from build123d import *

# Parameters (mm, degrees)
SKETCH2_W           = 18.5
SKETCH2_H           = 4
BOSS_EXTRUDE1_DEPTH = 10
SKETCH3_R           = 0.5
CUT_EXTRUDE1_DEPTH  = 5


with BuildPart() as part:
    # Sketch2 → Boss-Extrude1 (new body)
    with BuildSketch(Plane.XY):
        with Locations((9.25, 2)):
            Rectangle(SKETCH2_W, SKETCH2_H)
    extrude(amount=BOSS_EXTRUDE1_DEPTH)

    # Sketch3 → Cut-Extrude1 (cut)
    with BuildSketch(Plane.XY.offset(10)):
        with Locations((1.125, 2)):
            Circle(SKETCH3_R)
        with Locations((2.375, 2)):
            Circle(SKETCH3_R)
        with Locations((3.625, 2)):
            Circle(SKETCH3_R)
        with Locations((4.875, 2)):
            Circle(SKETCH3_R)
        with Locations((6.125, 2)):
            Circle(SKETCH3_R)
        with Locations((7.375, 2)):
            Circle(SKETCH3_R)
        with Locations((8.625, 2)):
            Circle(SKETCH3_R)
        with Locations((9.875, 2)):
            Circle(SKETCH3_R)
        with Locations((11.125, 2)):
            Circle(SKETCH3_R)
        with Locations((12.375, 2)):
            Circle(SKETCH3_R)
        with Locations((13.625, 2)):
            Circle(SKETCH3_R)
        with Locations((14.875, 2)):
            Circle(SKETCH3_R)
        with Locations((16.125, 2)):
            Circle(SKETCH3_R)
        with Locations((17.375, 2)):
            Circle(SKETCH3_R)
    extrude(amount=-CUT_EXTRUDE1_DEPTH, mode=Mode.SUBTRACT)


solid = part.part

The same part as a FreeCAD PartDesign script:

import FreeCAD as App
import Part
import Sketcher

V = App.Vector
Q = App.Units.Quantity

doc = App.newDocument("Part")
body = doc.addObject("PartDesign::Body", "Body")

sketch1 = body.newObject("Sketcher::SketchObject", "Sketch")
sketch1.AttachmentSupport = (doc.getObject("XY_Plane"), [""])
sketch1.MapMode = "FlatFace"
sketch1.addGeometry(Part.LineSegment(V(0, 4, 0), V(0, 0, 0)), False)
sketch1.addGeometry(Part.LineSegment(V(0, 0, 0), V(18.5, 0, 0)), False)
sketch1.addGeometry(Part.LineSegment(V(18.5, 0, 0), V(18.5, 4, 0)), False)
sketch1.addGeometry(Part.LineSegment(V(18.5, 4, 0), V(0, 4, 0)), False)
sketch1.addConstraint(Sketcher.Constraint("Coincident", 0, 2, 1, 1))
sketch1.addConstraint(Sketcher.Constraint("Coincident", 1, 2, 2, 1))
sketch1.addConstraint(Sketcher.Constraint("Coincident", 2, 2, 3, 1))
sketch1.addConstraint(Sketcher.Constraint("Coincident", 3, 2, 0, 1))
sketch1.addConstraint(Sketcher.Constraint("Vertical", 0))
sketch1.addConstraint(Sketcher.Constraint("Horizontal", 1))
sketch1.addConstraint(Sketcher.Constraint("Vertical", 2))
sketch1.addConstraint(Sketcher.Constraint("Horizontal", 3))
sketch1.addConstraint(Sketcher.Constraint("Coincident", 0, 2, -1, 1))
sketch1.addConstraint(Sketcher.Constraint("DistanceY", 0, 2, 0, 1, Q("4 mm")))
sketch1.addConstraint(Sketcher.Constraint("DistanceX", 1, 1, 1, 2, Q("18.5 mm")))
pad1 = body.newObject("PartDesign::Pad", "Pad")
pad1.Profile = sketch1
pad1.Length = 10

sketch2 = body.newObject("Sketcher::SketchObject", "Sketch001")
sketch2.AttachmentSupport = (doc.getObject("XY_Plane"), [""])
sketch2.MapMode = "FlatFace"
sketch2.AttachmentOffset = App.Placement(V(0, 0, 10), App.Rotation())
sketch2.addGeometry(Part.Circle(V(1.1, 2, 0), V(0, 0, 1), 0.5), False)
sketch2.addGeometry(Part.Circle(V(2.4, 2, 0), V(0, 0, 1), 0.5), False)
sketch2.addGeometry(Part.Circle(V(3.6, 2, 0), V(0, 0, 1), 0.5), False)
sketch2.addGeometry(Part.Circle(V(4.9, 2, 0), V(0, 0, 1), 0.5), False)
sketch2.addGeometry(Part.Circle(V(6.1, 2, 0), V(0, 0, 1), 0.5), False)
sketch2.addGeometry(Part.Circle(V(7.4, 2, 0), V(0, 0, 1), 0.5), False)
sketch2.addGeometry(Part.Circle(V(8.6, 2, 0), V(0, 0, 1), 0.5), False)
sketch2.addGeometry(Part.Circle(V(9.9, 2, 0), V(0, 0, 1), 0.5), False)
sketch2.addGeometry(Part.Circle(V(11.1, 2, 0), V(0, 0, 1), 0.5), False)
sketch2.addGeometry(Part.Circle(V(12.4, 2, 0), V(0, 0, 1), 0.5), False)
sketch2.addGeometry(Part.Circle(V(13.6, 2, 0), V(0, 0, 1), 0.5), False)
sketch2.addGeometry(Part.Circle(V(14.9, 2, 0), V(0, 0, 1), 0.5), False)
sketch2.addGeometry(Part.Circle(V(16.1, 2, 0), V(0, 0, 1), 0.5), False)
sketch2.addGeometry(Part.Circle(V(17.4, 2, 0), V(0, 0, 1), 0.5), False)
sketch2.addConstraint(Sketcher.Constraint("Equal", 0, 1))
sketch2.addConstraint(Sketcher.Constraint("Equal", 1, 2))
sketch2.addConstraint(Sketcher.Constraint("Equal", 2, 3))
sketch2.addConstraint(Sketcher.Constraint("Equal", 3, 4))
sketch2.addConstraint(Sketcher.Constraint("Equal", 4, 5))
sketch2.addConstraint(Sketcher.Constraint("Equal", 5, 6))
sketch2.addConstraint(Sketcher.Constraint("Equal", 6, 7))
sketch2.addConstraint(Sketcher.Constraint("Equal", 7, 8))
sketch2.addConstraint(Sketcher.Constraint("Equal", 8, 9))
sketch2.addConstraint(Sketcher.Constraint("Equal", 9, 10))
sketch2.addConstraint(Sketcher.Constraint("Equal", 10, 11))
sketch2.addConstraint(Sketcher.Constraint("Equal", 11, 12))
sketch2.addConstraint(Sketcher.Constraint("Equal", 12, 13))
sketch2.addConstraint(Sketcher.Constraint("Horizontal", 0, 3, 1, 3))
sketch2.addConstraint(Sketcher.Constraint("Horizontal", 1, 3, 2, 3))
sketch2.addConstraint(Sketcher.Constraint("Horizontal", 2, 3, 3, 3))
sketch2.addConstraint(Sketcher.Constraint("Horizontal", 3, 3, 4, 3))
sketch2.addConstraint(Sketcher.Constraint("Horizontal", 4, 3, 5, 3))
sketch2.addConstraint(Sketcher.Constraint("Horizontal", 5, 3, 6, 3))
sketch2.addConstraint(Sketcher.Constraint("Horizontal", 6, 3, 7, 3))
sketch2.addConstraint(Sketcher.Constraint("Horizontal", 7, 3, 8, 3))
sketch2.addConstraint(Sketcher.Constraint("Horizontal", 8, 3, 9, 3))
sketch2.addConstraint(Sketcher.Constraint("Horizontal", 9, 3, 10, 3))
sketch2.addConstraint(Sketcher.Constraint("Horizontal", 10, 3, 11, 3))
sketch2.addConstraint(Sketcher.Constraint("Horizontal", 11, 3, 12, 3))
sketch2.addConstraint(Sketcher.Constraint("Horizontal", 12, 3, 13, 3))
sketch2.addConstraint(Sketcher.Constraint("Diameter", 0, Q("1 mm")))
sketch2.addConstraint(Sketcher.Constraint("DistanceY", -1, 1, 0, 3, Q("2 mm")))
sketch2.addConstraint(Sketcher.Constraint("DistanceX", 0, 3, 4, 3, Q("5 mm")))
sketch2.addConstraint(Sketcher.Constraint("DistanceX", 1, 3, 5, 3, Q("5 mm")))
sketch2.addConstraint(Sketcher.Constraint("DistanceX", 2, 3, 6, 3, Q("5 mm")))
sketch2.addConstraint(Sketcher.Constraint("DistanceX", 3, 3, 7, 3, Q("5 mm")))
sketch2.addConstraint(Sketcher.Constraint("DistanceX", 4, 3, 8, 3, Q("5 mm")))
sketch2.addConstraint(Sketcher.Constraint("DistanceX", 5, 3, 9, 3, Q("5 mm")))
sketch2.addConstraint(Sketcher.Constraint("DistanceX", 6, 3, 10, 3, Q("5 mm")))
sketch2.addConstraint(Sketcher.Constraint("DistanceX", 7, 3, 11, 3, Q("5 mm")))
sketch2.addConstraint(Sketcher.Constraint("DistanceX", 8, 3, 12, 3, Q("5 mm")))
sketch2.addConstraint(Sketcher.Constraint("DistanceX", 9, 3, 13, 3, Q("5 mm")))
sketch2.addConstraint(Sketcher.Constraint("DistanceX", 0, 3, 2, 3, Q("2.5 mm")))
sketch2.addConstraint(Sketcher.Constraint("DistanceX", 1, 3, 3, 3, Q("2.5 mm")))
sketch2.addConstraint(Sketcher.Constraint("DistanceX", 0, 3, 1, 3, Q("1.25 mm")))
sketch2.addConstraint(Sketcher.Constraint("DistanceX", -1, 1, 0, 3, Q("1.125 mm")))
pocket1 = body.newObject("PartDesign::Pocket", "Pocket")
pocket1.Profile = sketch2
pocket1.Length = 5

doc.recompute()
